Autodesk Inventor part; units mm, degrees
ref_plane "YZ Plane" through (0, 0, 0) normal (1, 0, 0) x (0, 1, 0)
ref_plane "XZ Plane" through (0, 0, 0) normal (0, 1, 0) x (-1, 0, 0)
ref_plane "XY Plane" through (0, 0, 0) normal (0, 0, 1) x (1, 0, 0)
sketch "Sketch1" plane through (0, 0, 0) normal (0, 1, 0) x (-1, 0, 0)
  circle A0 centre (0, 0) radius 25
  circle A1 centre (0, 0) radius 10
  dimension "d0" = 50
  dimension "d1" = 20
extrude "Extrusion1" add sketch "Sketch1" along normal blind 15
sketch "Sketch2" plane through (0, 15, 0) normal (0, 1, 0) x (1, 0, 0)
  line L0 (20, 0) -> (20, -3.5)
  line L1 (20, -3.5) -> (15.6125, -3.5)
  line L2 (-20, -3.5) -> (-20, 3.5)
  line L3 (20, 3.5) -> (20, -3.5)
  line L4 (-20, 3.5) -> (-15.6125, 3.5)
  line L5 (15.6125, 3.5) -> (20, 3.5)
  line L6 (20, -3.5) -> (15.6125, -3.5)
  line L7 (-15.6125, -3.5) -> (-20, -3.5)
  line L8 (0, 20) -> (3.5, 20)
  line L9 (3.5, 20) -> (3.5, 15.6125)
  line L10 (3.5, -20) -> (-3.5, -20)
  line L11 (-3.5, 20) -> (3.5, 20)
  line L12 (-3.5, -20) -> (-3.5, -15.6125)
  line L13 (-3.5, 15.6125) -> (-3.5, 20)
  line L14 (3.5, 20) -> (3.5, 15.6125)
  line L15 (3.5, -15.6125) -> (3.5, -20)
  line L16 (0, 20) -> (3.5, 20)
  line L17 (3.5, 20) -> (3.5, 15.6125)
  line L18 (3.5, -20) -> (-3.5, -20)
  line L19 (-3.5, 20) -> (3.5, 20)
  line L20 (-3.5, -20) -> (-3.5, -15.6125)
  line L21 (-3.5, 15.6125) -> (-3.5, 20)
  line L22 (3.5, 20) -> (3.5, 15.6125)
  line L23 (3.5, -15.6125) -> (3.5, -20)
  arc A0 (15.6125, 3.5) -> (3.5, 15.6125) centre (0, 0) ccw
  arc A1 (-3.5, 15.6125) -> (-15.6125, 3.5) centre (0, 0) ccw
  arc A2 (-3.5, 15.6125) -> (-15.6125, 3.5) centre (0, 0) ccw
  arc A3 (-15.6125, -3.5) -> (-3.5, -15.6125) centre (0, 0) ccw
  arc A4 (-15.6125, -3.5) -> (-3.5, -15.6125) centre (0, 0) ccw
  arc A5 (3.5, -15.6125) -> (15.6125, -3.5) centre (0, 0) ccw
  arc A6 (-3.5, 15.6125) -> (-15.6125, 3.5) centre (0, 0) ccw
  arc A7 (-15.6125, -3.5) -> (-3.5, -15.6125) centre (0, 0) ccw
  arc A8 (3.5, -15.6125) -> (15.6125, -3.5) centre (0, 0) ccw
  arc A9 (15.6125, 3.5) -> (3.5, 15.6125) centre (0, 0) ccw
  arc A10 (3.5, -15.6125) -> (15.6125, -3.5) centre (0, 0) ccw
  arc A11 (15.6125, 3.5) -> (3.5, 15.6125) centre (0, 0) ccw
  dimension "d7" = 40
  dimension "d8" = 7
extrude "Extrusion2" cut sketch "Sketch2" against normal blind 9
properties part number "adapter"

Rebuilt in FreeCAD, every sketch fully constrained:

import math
import FreeCAD as App
import Part
import Sketcher
from FreeCAD import Vector
Q = App.Units.Quantity

doc = App.newDocument("Part")
params = doc.addObject("Spreadsheet::Sheet", "Params")
for row, (alias, value) in enumerate([
    ("sketch1_diameter", "50 mm"),
    ("sketch1_diameter2", "20 mm"),
    ("pad1_length", "15 mm"),
    ("sketch2_width", "7 mm"),
    ("sketch2_radius", "16 mm"),
    ("pocket1_length", "9 mm"),
], start=1):
    params.set(f"A{row}", alias)
    params.set(f"B{row}", "=" + value)
    params.setAlias(f"B{row}", alias)

body = doc.addObject("PartDesign::Body", "Body")

# Sketch on XZ plane
sketch1 = doc.addObject("Sketcher::SketchObject", "Sketch")
body.addObject(sketch1)
sketch1.AttachmentSupport = (doc.XZ_Plane, [""])
sketch1.MapMode = "FlatFace"
sketch1.addGeometry([
    Part.Circle(Vector(0, 0, 0), Vector(0, 0, 1), 25),
    Part.Circle(Vector(0, 0, 0), Vector(0, 0, 1), 10),
], False)
sketch1.addConstraint([
    Sketcher.Constraint("Coincident", 0, 3, -1, 1),
    Sketcher.Constraint("Coincident", 1, 3, -1, 1),
    Sketcher.Constraint("Diameter", 0, Q("50 mm")),
    Sketcher.Constraint("Diameter", 1, Q("20 mm")),
])
sketch1.setExpression("Constraints[2]", "Params.sketch1_diameter")
sketch1.setExpression("Constraints[3]", "Params.sketch1_diameter2")
pad1 = doc.addObject("PartDesign::Pad", "Pad")
body.addObject(pad1)
pad1.Profile = sketch1
pad1.setExpression("Length", "Params.pad1_length")
pad1.Reversed = True

# Sketch on XZ plane
sketch2 = doc.addObject("Sketcher::SketchObject", "Sketch001")
body.addObject(sketch2)
sketch2.AttachmentSupport = (doc.XZ_Plane, [""])
sketch2.MapMode = "FlatFace"
sketch2.AttachmentOffset = App.Placement(Vector(0, 0, -15), App.Rotation())
sketch2.addGeometry([
    Part.LineSegment(Vector(20, 3.5, 0), Vector(20, -3.5, 0)),  # 0
    Part.LineSegment(Vector(20, -3.5, 0), Vector(15.6, -3.5, 0)),  # 1
    Part.ArcOfCircle(Part.Circle(Vector(0, 0, 0), Vector(0, 0, 1), 16), math.radians(-77), math.radians(-13)),  # 2
    Part.LineSegment(Vector(3.5, -15.6, 0), Vector(3.5, -20, 0)),  # 3
    Part.LineSegment(Vector(3.5, -20, 0), Vector(-3.5, -20, 0)),  # 4
    Part.LineSegment(Vector(-3.5, -20, 0), Vector(-3.5, -15.6, 0)),  # 5
    Part.ArcOfCircle(Part.Circle(Vector(0, 0, 0), Vector(0, 0, 1), 16), math.radians(-167), math.radians(-103)),  # 6
    Part.LineSegment(Vector(-15.6, -3.5, 0), Vector(-20, -3.5, 0)),  # 7
    Part.LineSegment(Vector(-20, -3.5, 0), Vector(-20, 3.5, 0)),  # 8
    Part.LineSegment(Vector(-20, 3.5, 0), Vector(-15.6, 3.5, 0)),  # 9
    Part.ArcOfCircle(Part.Circle(Vector(0, 0, 0), Vector(0, 0, 1), 16), math.radians(103), math.radians(167)),  # 10
    Part.LineSegment(Vector(-3.5, 15.6, 0), Vector(-3.5, 20, 0)),  # 11
    Part.LineSegment(Vector(-3.5, 20, 0), Vector(3.5, 20, 0)),  # 12
    Part.LineSegment(Vector(3.5, 20, 0), Vector(3.5, 15.6, 0)),  # 13
    Part.ArcOfCircle(Part.Circle(Vector(0, 0, 0), Vector(0, 0, 1), 16), math.radians(13), math.radians(77)),  # 14
    Part.LineSegment(Vector(15.6, 3.5, 0), Vector(20, 3.5, 0)),  # 15
], False)
sketch2.addConstraint([
    Sketcher.Constraint("Coincident", 0, 2, 1, 1),
    Sketcher.Constraint("Coincident", 1, 2, 2, 2),
    Sketcher.Constraint("Coincident", 2, 1, 3, 1),
    Sketcher.Constraint("Coincident", 3, 2, 4, 1),
    Sketcher.Constraint("Coincident", 4, 2, 5, 1),
    Sketcher.Constraint("Coincident", 5, 2, 6, 2),
    Sketcher.Constraint("Coincident", 6, 1, 7, 1),
    Sketcher.Constraint("Coincident", 7, 2, 8, 1),
    Sketcher.Constraint("Coincident", 8, 2, 9, 1),
    Sketcher.Constraint("Coincident", 9, 2, 10, 2),
    Sketcher.Constraint("Coincident", 10, 1, 11, 1),
    Sketcher.Constraint("Coincident", 11, 2, 12, 1),
    Sketcher.Constraint("Coincident", 12, 2, 13, 1),
    Sketcher.Constraint("Coincident", 13, 2, 14, 2),
    Sketcher.Constraint("Coincident", 14, 1, 15, 1),
    Sketcher.Constraint("Coincident", 15, 2, 0, 1),
    Sketcher.Constraint("Vertical", 0),
    Sketcher.Constraint("Horizontal", 1),
    Sketcher.Constraint("Vertical", 3),
    Sketcher.Constraint("Horizontal", 4),
    Sketcher.Constraint("Vertical", 5),
    Sketcher.Constraint("Horizontal", 7),
    Sketcher.Constraint("Vertical", 8),
    Sketcher.Constraint("Horizontal", 9),
    Sketcher.Constraint("Vertical", 11),
    Sketcher.Constraint("Horizontal", 12),
    Sketcher.Constraint("Vertical", 13),
    Sketcher.Constraint("Horizontal", 15),
    Sketcher.Constraint("Coincident", 2, 3, -1, 1),
    Sketcher.Constraint("Coincident", 6, 3, -1, 1),
    Sketcher.Constraint("Coincident", 10, 3, -1, 1),
    Sketcher.Constraint("Coincident", 14, 3, -1, 1),
    Sketcher.Constraint("Equal", 2, 6),
    Sketcher.Constraint("Equal", 6, 10),
    Sketcher.Constraint("Equal", 10, 14),
    Sketcher.Constraint("Symmetric", 0, 2, 8, 2, -1, 1),
    Sketcher.Constraint("Symmetric", 3, 2, 11, 2, -1, 1),
    Sketcher.Constraint("Horizontal", 2, 1, 5, 2),
    Sketcher.Constraint("Horizontal", 1, 2, 6, 1),
    Sketcher.Constraint("Horizontal", 10, 1, 13, 2),
    Sketcher.Constraint("Horizontal", 9, 2, 14, 1),
    Sketcher.Constraint("Equal", 12, 0),
    Sketcher.Constraint("Equal", 15, 3),
    Sketcher.Constraint("DistanceX", 4, 2, 4, 1, Q("7 mm")),
    Sketcher.Constraint("Radius", 2, Q("16 mm")),
    Sketcher.Constraint("DistanceX", -1, 1, 0, 2, Q("20 mm")),
])
sketch2.setExpression("Constraints[43]", "Params.sketch2_width")
sketch2.setExpression("Constraints[44]", "Params.sketch2_radius")
pocket1 = doc.addObject("PartDesign::Pocket", "Pocket")
body.addObject(pocket1)
pocket1.Profile = sketch2
pocket1.setExpression("Length", "Params.pocket1_length")
pocket1.Reversed = True

doc.recompute()
